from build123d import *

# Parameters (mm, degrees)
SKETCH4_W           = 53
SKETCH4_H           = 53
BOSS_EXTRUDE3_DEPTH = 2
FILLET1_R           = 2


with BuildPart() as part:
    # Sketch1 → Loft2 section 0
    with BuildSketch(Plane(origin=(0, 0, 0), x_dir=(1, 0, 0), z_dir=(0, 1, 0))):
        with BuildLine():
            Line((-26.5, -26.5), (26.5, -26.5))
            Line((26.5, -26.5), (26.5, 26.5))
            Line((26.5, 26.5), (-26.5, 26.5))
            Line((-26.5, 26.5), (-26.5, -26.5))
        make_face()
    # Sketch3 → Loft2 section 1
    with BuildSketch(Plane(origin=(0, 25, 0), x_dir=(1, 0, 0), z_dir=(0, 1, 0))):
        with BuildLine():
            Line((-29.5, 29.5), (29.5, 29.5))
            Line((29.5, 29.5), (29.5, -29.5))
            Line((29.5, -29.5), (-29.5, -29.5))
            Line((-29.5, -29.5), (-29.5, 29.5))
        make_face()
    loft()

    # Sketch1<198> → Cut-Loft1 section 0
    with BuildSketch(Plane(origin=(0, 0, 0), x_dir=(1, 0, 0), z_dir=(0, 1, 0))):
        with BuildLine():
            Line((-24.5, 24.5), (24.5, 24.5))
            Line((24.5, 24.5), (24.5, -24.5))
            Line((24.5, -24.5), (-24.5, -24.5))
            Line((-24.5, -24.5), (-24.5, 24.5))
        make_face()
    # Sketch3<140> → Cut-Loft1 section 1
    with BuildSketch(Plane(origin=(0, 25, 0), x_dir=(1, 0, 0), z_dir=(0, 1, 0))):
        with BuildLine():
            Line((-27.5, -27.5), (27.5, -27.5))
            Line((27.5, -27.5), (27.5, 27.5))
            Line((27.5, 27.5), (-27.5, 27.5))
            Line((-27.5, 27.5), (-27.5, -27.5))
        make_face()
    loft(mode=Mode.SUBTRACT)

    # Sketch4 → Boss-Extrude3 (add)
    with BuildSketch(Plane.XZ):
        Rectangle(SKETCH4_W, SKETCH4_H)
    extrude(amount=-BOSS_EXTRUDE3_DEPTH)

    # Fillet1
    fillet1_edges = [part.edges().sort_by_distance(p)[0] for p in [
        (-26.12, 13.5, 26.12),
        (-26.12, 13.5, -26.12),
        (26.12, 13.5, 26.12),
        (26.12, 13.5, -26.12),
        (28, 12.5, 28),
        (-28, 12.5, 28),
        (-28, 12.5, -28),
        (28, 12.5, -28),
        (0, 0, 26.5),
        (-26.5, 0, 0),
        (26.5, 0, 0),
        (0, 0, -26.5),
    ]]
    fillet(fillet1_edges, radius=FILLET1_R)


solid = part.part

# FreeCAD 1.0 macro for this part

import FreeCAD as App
import Part
import Sketcher
Q = App.Units.Quantity


def edges_at(feature, points):
    """Names of the edges that pass closest to the given points."""
    edges = feature.Shape.Edges
    near = lambda p: min(range(len(edges)), key=lambda i: edges[i].distToShape(Part.Vertex(*p))[0])
    return sorted({f"Edge{near(p) + 1}" for p in points})

doc = App.newDocument("Part")
body = doc.addObject("PartDesign::Body", "Body")

# Sketch on XZ plane
sketch1 = body.newObject("Sketcher::SketchObject", "Sketch")
sketch1.AttachmentSupport = (doc.getObject("XZ_Plane"), [""])
sketch1.MapMode = "FlatFace"
sketch1.addGeometry(Part.LineSegment(App.Vector(-26, 26, 0), App.Vector(26, 26, 0)), False)
sketch1.addGeometry(Part.LineSegment(App.Vector(26, 26, 0), App.Vector(26, -26, 0)), False)
sketch1.addGeometry(Part.LineSegment(App.Vector(26, -26, 0), App.Vector(-26, -26, 0)), False)
sketch1.addGeometry(Part.LineSegment(App.Vector(-26, -26, 0), App.Vector(-26, 26, 0)), False)
sketch1.addConstraint(Sketcher.Constraint("Coincident", 0, 2, 1, 1))
sketch1.addConstraint(Sketcher.Constraint("Coincident", 1, 2, 2, 1))
sketch1.addConstraint(Sketcher.Constraint("Coincident", 2, 2, 3, 1))
sketch1.addConstraint(Sketcher.Constraint("Coincident", 3, 2, 0, 1))
sketch1.addConstraint(Sketcher.Constraint("Horizontal", 0))
sketch1.addConstraint(Sketcher.Constraint("Vertical", 1))
sketch1.addConstraint(Sketcher.Constraint("Horizontal", 2))
sketch1.addConstraint(Sketcher.Constraint("Vertical", 3))
sketch1.addConstraint(Sketcher.Constraint("Symmetric", 0, 2, 2, 2, -1, 1))
sketch1.addConstraint(Sketcher.Constraint("Equal", 2, 1))
sketch1.addConstraint(Sketcher.Constraint("DistanceX", 0, 1, 0, 2, Q("53 mm")))

# Sketch on XZ plane
sketch2 = body.newObject("Sketcher::SketchObject", "Sketch001")
sketch2.AttachmentSupport = (doc.getObject("XZ_Plane"), [""])
sketch2.MapMode = "FlatFace"
sketch2.AttachmentOffset = App.Placement(App.Vector(0, 0, -25), App.Rotation())
sketch2.addGeometry(Part.LineSegment(App.Vector(30, -30, 0), App.Vector(-30, -30, 0)), False)
sketch2.addGeometry(Part.LineSegment(App.Vector(-30, -30, 0), App.Vector(-30, 30, 0)), False)
sketch2.addGeometry(Part.LineSegment(App.Vector(-30, 30, 0), App.Vector(30, 30, 0)), False)
sketch2.addGeometry(Part.LineSegment(App.Vector(30, 30, 0), App.Vector(30, -30, 0)), False)
sketch2.addConstraint(Sketcher.Constraint("Coincident", 0, 2, 1, 1))
sketch2.addConstraint(Sketcher.Constraint("Coincident", 1, 2, 2, 1))
sketch2.addConstraint(Sketcher.Constraint("Coincident", 2, 2, 3, 1))
sketch2.addConstraint(Sketcher.Constraint("Coincident", 3, 2, 0, 1))
sketch2.addConstraint(Sketcher.Constraint("Horizontal", 0))
sketch2.addConstraint(Sketcher.Constraint("Vertical", 1))
sketch2.addConstraint(Sketcher.Constraint("Horizontal", 2))
sketch2.addConstraint(Sketcher.Constraint("Vertical", 3))
sketch2.addConstraint(Sketcher.Constraint("Symmetric", 0, 2, 2, 2, -1, 1))
sketch2.addConstraint(Sketcher.Constraint("Equal", 2, 1))
sketch2.addConstraint(Sketcher.Constraint("DistanceX", 0, 2, 0, 1, Q("59 mm")))

additiveloft = body.newObject("PartDesign::AdditiveLoft", "AdditiveLoft")
additiveloft.Profile = sketch1
additiveloft.Sections = [sketch2]

# Sketch on XZ plane
sketch3 = body.newObject("Sketcher::SketchObject", "Sketch002")
sketch3.AttachmentSupport = (doc.getObject("XZ_Plane"), [""])
sketch3.MapMode = "FlatFace"
sketch3.addGeometry(Part.LineSegment(App.Vector(24, -24, 0), App.Vector(-24, -24, 0)), False)
sketch3.addGeometry(Part.LineSegment(App.Vector(-24, -24, 0), App.Vector(-24, 24, 0)), False)
sketch3.addGeometry(Part.LineSegment(App.Vector(-24, 24, 0), App.Vector(24, 24, 0)), False)
sketch3.addGeometry(Part.LineSegment(App.Vector(24, 24, 0), App.Vector(24, -24, 0)), False)
sketch3.addConstraint(Sketcher.Constraint("Coincident", 0, 2, 1, 1))
sketch3.addConstraint(Sketcher.Constraint("Coincident", 1, 2, 2, 1))
sketch3.addConstraint(Sketcher.Constraint("Coincident", 2, 2, 3, 1))
sketch3.addConstraint(Sketcher.Constraint("Coincident", 3, 2, 0, 1))
sketch3.addConstraint(Sketcher.Constraint("Horizontal", 0))
sketch3.addConstraint(Sketcher.Constraint("Vertical", 1))
sketch3.addConstraint(Sketcher.Constraint("Horizontal", 2))
sketch3.addConstraint(Sketcher.Constraint("Vertical", 3))
sketch3.addConstraint(Sketcher.Constraint("Symmetric", 0, 2, 2, 2, -1, 1))
sketch3.addConstraint(Sketcher.Constraint("Equal", 2, 1))
sketch3.addConstraint(Sketcher.Constraint("DistanceX", 0, 2, 0, 1, Q("49 mm")))

# Sketch on XZ plane
sketch4 = body.newObject("Sketcher::SketchObject", "Sketch003")
sketch4.AttachmentSupport = (doc.getObject("XZ_Plane"), [""])
sketch4.MapMode = "FlatFace"
sketch4.AttachmentOffset = App.Placement(App.Vector(0, 0, -25), App.Rotation())
sketch4.addGeometry(Part.LineSegment(App.Vector(-28, 28, 0), App.Vector(28, 28, 0)), False)
sketch4.addGeometry(Part.LineSegment(App.Vector(28, 28, 0), App.Vector(28, -28, 0)), False)
sketch4.addGeometry(Part.LineSegment(App.Vector(28, -28, 0), App.Vector(-28, -28, 0)), False)
sketch4.addGeometry(Part.LineSegment(App.Vector(-28, -28, 0), App.Vector(-28, 28, 0)), False)
sketch4.addConstraint(Sketcher.Constraint("Coincident", 0, 2, 1, 1))
sketch4.addConstraint(Sketcher.Constraint("Coincident", 1, 2, 2, 1))
sketch4.addConstraint(Sketcher.Constraint("Coincident", 2, 2, 3, 1))
sketch4.addConstraint(Sketcher.Constraint("Coincident", 3, 2, 0, 1))
sketch4.addConstraint(Sketcher.Constraint("Horizontal", 0))
sketch4.addConstraint(Sketcher.Constraint("Vertical", 1))
sketch4.addConstraint(Sketcher.Constraint("Horizontal", 2))
sketch4.addConstraint(Sketcher.Constraint("Vertical", 3))
sketch4.addConstraint(Sketcher.Constraint("Symmetric", 0, 2, 2, 2, -1, 1))
sketch4.addConstraint(Sketcher.Constraint("Equal", 2, 1))
sketch4.addConstraint(Sketcher.Constraint("DistanceX", 0, 1, 0, 2, Q("55 mm")))

subtractiveloft = body.newObject("PartDesign::SubtractiveLoft", "SubtractiveLoft")
subtractiveloft.Profile = sketch3
subtractiveloft.Sections = [sketch4]

# Sketch on XZ plane
sketch5 = body.newObject("Sketcher::SketchObject", "Sketch004")
sketch5.AttachmentSupport = (doc.getObject("XZ_Plane"), [""])
sketch5.MapMode = "FlatFace"
sketch5.addGeometry(Part.LineSegment(App.Vector(-26, 26, 0), App.Vector(-26, -26, 0)), False)
sketch5.addGeometry(Part.LineSegment(App.Vector(-26, -26, 0), App.Vector(26, -26, 0)), False)
sketch5.addGeometry(Part.LineSegment(App.Vector(26, -26, 0), App.Vector(26, 26, 0)), False)
sketch5.addGeometry(Part.LineSegment(App.Vector(26, 26, 0), App.Vector(-26, 26, 0)), False)
sketch5.addConstraint(Sketcher.Constraint("Coincident", 0, 2, 1, 1))
sketch5.addConstraint(Sketcher.Constraint("Coincident", 1, 2, 2, 1))
sketch5.addConstraint(Sketcher.Constraint("Coincident", 2, 2, 3, 1))
sketch5.addConstraint(Sketcher.Constraint("Coincident", 3, 2, 0, 1))
sketch5.addConstraint(Sketcher.Constraint("Vertical", 0))
sketch5.addConstraint(Sketcher.Constraint("Horizontal", 1))
sketch5.addConstraint(Sketcher.Constraint("Vertical", 2))
sketch5.addConstraint(Sketcher.Constraint("Horizontal", 3))
sketch5.addConstraint(Sketcher.Constraint("Symmetric", 0, 2, 2, 2, -1, 1))
sketch5.addConstraint(Sketcher.Constraint("Equal", 3, 0))
sketch5.addConstraint(Sketcher.Constraint("DistanceX", 1, 1, 1, 2, Q("53 mm")))
pad1 = body.newObject("PartDesign::Pad", "Pad")
pad1.Profile = sketch5
pad1.Length = 2
pad1.Reversed = True
doc.recompute()

fillet = body.newObject("PartDesign::Fillet", "Fillet")
fillet.Base = (pad1, edges_at(pad1, [
    (-26.12, 13.5, 26.12),
    (-26.12, 13.5, -26.12),
    (26.12, 13.5, 26.12),
    (26.12, 13.5, -26.12),
    (28, 12.5, 28),
    (-28, 12.5, 28),
    (-28, 12.5, -28),
    (28, 12.5, -28),
    (0, 0, 26.5),
    (-26.5, 0, 0),
    (26.5, 0, 0),
    (0, 0, -26.5),
]))
fillet.Radius = 2

doc.recompute()
